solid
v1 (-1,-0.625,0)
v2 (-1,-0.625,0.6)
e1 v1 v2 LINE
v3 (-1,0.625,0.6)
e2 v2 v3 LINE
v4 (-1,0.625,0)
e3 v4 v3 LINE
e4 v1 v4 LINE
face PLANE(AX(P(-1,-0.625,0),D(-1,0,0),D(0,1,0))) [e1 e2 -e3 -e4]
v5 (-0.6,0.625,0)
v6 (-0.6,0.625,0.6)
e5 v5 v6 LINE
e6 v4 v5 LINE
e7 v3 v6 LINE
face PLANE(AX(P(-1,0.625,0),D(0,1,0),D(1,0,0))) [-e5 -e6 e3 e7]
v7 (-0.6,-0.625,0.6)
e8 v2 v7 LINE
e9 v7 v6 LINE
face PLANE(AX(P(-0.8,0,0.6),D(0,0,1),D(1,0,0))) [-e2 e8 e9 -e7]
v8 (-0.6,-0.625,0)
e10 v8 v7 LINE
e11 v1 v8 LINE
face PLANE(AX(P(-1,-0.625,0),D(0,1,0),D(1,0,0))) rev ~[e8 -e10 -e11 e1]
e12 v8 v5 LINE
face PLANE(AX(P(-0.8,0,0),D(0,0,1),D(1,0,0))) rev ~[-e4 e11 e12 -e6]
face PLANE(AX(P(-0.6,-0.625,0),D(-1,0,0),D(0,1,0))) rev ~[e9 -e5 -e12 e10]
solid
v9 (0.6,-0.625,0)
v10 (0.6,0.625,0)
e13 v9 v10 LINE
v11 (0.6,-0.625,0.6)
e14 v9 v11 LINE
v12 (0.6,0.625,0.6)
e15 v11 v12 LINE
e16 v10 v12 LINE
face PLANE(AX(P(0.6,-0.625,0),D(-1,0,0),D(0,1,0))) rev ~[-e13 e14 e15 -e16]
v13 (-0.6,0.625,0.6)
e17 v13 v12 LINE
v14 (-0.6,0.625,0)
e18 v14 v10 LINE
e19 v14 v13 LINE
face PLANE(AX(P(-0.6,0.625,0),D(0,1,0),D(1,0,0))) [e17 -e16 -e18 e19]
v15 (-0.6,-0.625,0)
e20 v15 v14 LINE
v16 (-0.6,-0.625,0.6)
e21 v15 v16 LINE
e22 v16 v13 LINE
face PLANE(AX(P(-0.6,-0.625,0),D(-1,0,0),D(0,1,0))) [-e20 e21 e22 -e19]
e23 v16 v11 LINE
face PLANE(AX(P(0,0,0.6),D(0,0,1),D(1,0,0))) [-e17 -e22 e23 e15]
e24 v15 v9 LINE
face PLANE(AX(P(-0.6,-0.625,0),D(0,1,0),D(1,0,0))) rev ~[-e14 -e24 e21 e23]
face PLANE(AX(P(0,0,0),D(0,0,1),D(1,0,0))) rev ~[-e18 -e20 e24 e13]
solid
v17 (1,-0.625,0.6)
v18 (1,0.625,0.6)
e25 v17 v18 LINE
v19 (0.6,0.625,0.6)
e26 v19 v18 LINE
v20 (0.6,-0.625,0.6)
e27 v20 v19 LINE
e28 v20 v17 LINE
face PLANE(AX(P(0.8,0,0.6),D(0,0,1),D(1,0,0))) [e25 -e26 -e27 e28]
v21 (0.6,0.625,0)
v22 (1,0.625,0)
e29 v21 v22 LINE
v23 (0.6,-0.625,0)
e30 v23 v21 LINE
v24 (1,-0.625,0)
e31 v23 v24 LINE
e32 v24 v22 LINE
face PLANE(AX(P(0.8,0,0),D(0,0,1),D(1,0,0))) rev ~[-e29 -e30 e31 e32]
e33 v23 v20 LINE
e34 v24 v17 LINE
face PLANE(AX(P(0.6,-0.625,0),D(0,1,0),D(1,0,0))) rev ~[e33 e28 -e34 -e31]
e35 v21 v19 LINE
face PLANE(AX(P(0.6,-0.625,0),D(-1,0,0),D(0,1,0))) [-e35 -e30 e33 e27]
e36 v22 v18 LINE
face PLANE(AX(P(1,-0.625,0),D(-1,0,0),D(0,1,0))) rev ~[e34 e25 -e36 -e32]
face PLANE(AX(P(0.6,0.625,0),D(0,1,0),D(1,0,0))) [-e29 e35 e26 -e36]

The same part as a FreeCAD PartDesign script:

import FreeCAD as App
import Part
import Sketcher
Q = App.Units.Quantity

doc = App.newDocument("Part")
body = doc.addObject("PartDesign::Body", "Body")

sketch1 = body.newObject("Sketcher::SketchObject", "Sketch")
sketch1.AttachmentSupport = (doc.getObject("XY_Plane"), [""])
sketch1.MapMode = "FlatFace"
sketch1.addGeometry(Part.LineSegment(App.Vector(-0.6, 0.6, 0), App.Vector(-0.6, -0.6, 0)), False)
sketch1.addGeometry(Part.LineSegment(App.Vector(-0.6, -0.6, 0), App.Vector(0.6, -0.6, 0)), False)
sketch1.addGeometry(Part.LineSegment(App.Vector(0.6, -0.6, 0), App.Vector(0.6, 0.6, 0)), False)
sketch1.addGeometry(Part.LineSegment(App.Vector(0.6, 0.6, 0), App.Vector(-0.6, 0.6, 0)), False)
sketch1.addConstraint(Sketcher.Constraint("Coincident", 0, 2, 1, 1))
sketch1.addConstraint(Sketcher.Constraint("Coincident", 1, 2, 2, 1))
sketch1.addConstraint(Sketcher.Constraint("Coincident", 2, 2, 3, 1))
sketch1.addConstraint(Sketcher.Constraint("Coincident", 3, 2, 0, 1))
sketch1.addConstraint(Sketcher.Constraint("Vertical", 0))
sketch1.addConstraint(Sketcher.Constraint("Horizontal", 1))
sketch1.addConstraint(Sketcher.Constraint("Vertical", 2))
sketch1.addConstraint(Sketcher.Constraint("Horizontal", 3))
sketch1.addConstraint(Sketcher.Constraint("Symmetric", 0, 2, 2, 2, -1, 1))
sketch1.addConstraint(Sketcher.Constraint("DistanceX", 1, 1, 1, 2, Q("1.2 mm")))
sketch1.addConstraint(Sketcher.Constraint("DistanceY", 0, 2, 0, 1, Q("1.25 mm")))
pad1 = body.newObject("PartDesign::Pad", "Pad")
pad1.Profile = sketch1
pad1.Length = 0.6
body2 = doc.addObject("PartDesign::Body", "Body001")
body2.AllowCompound = True

sketch2 = body2.newObject("Sketcher::SketchObject", "Sketch001")
sketch2.AttachmentSupport = (doc.getObject("XY_Plane001"), [""])
sketch2.MapMode = "FlatFace"
sketch2.addGeometry(Part.LineSegment(App.Vector(-1, 0.62, 0), App.Vector(-1, -0.62, 0)), False)
sketch2.addGeometry(Part.LineSegment(App.Vector(-1, -0.62, 0), App.Vector(-0.6, -0.62, 0)), False)
sketch2.addGeometry(Part.LineSegment(App.Vector(-0.6, -0.62, 0), App.Vector(-0.6, 0.62, 0)), False)
sketch2.addGeometry(Part.LineSegment(App.Vector(-0.6, 0.62, 0), App.Vector(-1, 0.62, 0)), False)
sketch2.addGeometry(Part.LineSegment(App.Vector(0.6, 0.62, 0), App.Vector(0.6, -0.62, 0)), False)
sketch2.addGeometry(Part.LineSegment(App.Vector(0.6, -0.62, 0), App.Vector(1, -0.62, 0)), False)
sketch2.addGeometry(Part.LineSegment(App.Vector(1, -0.62, 0), App.Vector(1, 0.62, 0)), False)
sketch2.addGeometry(Part.LineSegment(App.Vector(1, 0.62, 0), App.Vector(0.6, 0.62, 0)), False)
sketch2.addConstraint(Sketcher.Constraint("Coincident", 0, 2, 1, 1))
sketch2.addConstraint(Sketcher.Constraint("Coincident", 1, 2, 2, 1))
sketch2.addConstraint(Sketcher.Constraint("Coincident", 2, 2, 3, 1))
sketch2.addConstraint(Sketcher.Constraint("Coincident", 3, 2, 0, 1))
sketch2.addConstraint(Sketcher.Constraint("Coincident", 4, 2, 5, 1))
sketch2.addConstraint(Sketcher.Constraint("Coincident", 5, 2, 6, 1))
sketch2.addConstraint(Sketcher.Constraint("Coincident", 6, 2, 7, 1))
sketch2.addConstraint(Sketcher.Constraint("Coincident", 7, 2, 4, 1))
sketch2.addConstraint(Sketcher.Constraint("Vertical", 0))
sketch2.addConstraint(Sketcher.Constraint("Horizontal", 1))
sketch2.addConstraint(Sketcher.Constraint("Vertical", 2))
sketch2.addConstraint(Sketcher.Constraint("Horizontal", 3))
sketch2.addConstraint(Sketcher.Constraint("Vertical", 4))
sketch2.addConstraint(Sketcher.Constraint("Horizontal", 5))
sketch2.addConstraint(Sketcher.Constraint("Vertical", 6))
sketch2.addConstraint(Sketcher.Constraint("Horizontal", 7))
sketch2.addConstraint(Sketcher.Constraint("Symmetric", 2, 2, 4, 2, -1, 1))
sketch2.addConstraint(Sketcher.Constraint("Symmetric", 0, 2, 6, 2, -1, 1))
sketch2.addConstraint(Sketcher.Constraint("Horizontal", 1, 2, 4, 2))
sketch2.addConstraint(Sketcher.Constraint("DistanceX", 1, 1, 1, 2, Q("0.4 mm")))
sketch2.addConstraint(Sketcher.Constraint("DistanceX", 0, 2, -1, 1, Q("1 mm")))
sketch2.addConstraint(Sketcher.Constraint("DistanceY", 0, 2, 0, 1, Q("1.25 mm")))
pad2 = body2.newObject("PartDesign::Pad", "Pad001")
pad2.Profile = sketch2
pad2.Length = 0.6

doc.recompute()
